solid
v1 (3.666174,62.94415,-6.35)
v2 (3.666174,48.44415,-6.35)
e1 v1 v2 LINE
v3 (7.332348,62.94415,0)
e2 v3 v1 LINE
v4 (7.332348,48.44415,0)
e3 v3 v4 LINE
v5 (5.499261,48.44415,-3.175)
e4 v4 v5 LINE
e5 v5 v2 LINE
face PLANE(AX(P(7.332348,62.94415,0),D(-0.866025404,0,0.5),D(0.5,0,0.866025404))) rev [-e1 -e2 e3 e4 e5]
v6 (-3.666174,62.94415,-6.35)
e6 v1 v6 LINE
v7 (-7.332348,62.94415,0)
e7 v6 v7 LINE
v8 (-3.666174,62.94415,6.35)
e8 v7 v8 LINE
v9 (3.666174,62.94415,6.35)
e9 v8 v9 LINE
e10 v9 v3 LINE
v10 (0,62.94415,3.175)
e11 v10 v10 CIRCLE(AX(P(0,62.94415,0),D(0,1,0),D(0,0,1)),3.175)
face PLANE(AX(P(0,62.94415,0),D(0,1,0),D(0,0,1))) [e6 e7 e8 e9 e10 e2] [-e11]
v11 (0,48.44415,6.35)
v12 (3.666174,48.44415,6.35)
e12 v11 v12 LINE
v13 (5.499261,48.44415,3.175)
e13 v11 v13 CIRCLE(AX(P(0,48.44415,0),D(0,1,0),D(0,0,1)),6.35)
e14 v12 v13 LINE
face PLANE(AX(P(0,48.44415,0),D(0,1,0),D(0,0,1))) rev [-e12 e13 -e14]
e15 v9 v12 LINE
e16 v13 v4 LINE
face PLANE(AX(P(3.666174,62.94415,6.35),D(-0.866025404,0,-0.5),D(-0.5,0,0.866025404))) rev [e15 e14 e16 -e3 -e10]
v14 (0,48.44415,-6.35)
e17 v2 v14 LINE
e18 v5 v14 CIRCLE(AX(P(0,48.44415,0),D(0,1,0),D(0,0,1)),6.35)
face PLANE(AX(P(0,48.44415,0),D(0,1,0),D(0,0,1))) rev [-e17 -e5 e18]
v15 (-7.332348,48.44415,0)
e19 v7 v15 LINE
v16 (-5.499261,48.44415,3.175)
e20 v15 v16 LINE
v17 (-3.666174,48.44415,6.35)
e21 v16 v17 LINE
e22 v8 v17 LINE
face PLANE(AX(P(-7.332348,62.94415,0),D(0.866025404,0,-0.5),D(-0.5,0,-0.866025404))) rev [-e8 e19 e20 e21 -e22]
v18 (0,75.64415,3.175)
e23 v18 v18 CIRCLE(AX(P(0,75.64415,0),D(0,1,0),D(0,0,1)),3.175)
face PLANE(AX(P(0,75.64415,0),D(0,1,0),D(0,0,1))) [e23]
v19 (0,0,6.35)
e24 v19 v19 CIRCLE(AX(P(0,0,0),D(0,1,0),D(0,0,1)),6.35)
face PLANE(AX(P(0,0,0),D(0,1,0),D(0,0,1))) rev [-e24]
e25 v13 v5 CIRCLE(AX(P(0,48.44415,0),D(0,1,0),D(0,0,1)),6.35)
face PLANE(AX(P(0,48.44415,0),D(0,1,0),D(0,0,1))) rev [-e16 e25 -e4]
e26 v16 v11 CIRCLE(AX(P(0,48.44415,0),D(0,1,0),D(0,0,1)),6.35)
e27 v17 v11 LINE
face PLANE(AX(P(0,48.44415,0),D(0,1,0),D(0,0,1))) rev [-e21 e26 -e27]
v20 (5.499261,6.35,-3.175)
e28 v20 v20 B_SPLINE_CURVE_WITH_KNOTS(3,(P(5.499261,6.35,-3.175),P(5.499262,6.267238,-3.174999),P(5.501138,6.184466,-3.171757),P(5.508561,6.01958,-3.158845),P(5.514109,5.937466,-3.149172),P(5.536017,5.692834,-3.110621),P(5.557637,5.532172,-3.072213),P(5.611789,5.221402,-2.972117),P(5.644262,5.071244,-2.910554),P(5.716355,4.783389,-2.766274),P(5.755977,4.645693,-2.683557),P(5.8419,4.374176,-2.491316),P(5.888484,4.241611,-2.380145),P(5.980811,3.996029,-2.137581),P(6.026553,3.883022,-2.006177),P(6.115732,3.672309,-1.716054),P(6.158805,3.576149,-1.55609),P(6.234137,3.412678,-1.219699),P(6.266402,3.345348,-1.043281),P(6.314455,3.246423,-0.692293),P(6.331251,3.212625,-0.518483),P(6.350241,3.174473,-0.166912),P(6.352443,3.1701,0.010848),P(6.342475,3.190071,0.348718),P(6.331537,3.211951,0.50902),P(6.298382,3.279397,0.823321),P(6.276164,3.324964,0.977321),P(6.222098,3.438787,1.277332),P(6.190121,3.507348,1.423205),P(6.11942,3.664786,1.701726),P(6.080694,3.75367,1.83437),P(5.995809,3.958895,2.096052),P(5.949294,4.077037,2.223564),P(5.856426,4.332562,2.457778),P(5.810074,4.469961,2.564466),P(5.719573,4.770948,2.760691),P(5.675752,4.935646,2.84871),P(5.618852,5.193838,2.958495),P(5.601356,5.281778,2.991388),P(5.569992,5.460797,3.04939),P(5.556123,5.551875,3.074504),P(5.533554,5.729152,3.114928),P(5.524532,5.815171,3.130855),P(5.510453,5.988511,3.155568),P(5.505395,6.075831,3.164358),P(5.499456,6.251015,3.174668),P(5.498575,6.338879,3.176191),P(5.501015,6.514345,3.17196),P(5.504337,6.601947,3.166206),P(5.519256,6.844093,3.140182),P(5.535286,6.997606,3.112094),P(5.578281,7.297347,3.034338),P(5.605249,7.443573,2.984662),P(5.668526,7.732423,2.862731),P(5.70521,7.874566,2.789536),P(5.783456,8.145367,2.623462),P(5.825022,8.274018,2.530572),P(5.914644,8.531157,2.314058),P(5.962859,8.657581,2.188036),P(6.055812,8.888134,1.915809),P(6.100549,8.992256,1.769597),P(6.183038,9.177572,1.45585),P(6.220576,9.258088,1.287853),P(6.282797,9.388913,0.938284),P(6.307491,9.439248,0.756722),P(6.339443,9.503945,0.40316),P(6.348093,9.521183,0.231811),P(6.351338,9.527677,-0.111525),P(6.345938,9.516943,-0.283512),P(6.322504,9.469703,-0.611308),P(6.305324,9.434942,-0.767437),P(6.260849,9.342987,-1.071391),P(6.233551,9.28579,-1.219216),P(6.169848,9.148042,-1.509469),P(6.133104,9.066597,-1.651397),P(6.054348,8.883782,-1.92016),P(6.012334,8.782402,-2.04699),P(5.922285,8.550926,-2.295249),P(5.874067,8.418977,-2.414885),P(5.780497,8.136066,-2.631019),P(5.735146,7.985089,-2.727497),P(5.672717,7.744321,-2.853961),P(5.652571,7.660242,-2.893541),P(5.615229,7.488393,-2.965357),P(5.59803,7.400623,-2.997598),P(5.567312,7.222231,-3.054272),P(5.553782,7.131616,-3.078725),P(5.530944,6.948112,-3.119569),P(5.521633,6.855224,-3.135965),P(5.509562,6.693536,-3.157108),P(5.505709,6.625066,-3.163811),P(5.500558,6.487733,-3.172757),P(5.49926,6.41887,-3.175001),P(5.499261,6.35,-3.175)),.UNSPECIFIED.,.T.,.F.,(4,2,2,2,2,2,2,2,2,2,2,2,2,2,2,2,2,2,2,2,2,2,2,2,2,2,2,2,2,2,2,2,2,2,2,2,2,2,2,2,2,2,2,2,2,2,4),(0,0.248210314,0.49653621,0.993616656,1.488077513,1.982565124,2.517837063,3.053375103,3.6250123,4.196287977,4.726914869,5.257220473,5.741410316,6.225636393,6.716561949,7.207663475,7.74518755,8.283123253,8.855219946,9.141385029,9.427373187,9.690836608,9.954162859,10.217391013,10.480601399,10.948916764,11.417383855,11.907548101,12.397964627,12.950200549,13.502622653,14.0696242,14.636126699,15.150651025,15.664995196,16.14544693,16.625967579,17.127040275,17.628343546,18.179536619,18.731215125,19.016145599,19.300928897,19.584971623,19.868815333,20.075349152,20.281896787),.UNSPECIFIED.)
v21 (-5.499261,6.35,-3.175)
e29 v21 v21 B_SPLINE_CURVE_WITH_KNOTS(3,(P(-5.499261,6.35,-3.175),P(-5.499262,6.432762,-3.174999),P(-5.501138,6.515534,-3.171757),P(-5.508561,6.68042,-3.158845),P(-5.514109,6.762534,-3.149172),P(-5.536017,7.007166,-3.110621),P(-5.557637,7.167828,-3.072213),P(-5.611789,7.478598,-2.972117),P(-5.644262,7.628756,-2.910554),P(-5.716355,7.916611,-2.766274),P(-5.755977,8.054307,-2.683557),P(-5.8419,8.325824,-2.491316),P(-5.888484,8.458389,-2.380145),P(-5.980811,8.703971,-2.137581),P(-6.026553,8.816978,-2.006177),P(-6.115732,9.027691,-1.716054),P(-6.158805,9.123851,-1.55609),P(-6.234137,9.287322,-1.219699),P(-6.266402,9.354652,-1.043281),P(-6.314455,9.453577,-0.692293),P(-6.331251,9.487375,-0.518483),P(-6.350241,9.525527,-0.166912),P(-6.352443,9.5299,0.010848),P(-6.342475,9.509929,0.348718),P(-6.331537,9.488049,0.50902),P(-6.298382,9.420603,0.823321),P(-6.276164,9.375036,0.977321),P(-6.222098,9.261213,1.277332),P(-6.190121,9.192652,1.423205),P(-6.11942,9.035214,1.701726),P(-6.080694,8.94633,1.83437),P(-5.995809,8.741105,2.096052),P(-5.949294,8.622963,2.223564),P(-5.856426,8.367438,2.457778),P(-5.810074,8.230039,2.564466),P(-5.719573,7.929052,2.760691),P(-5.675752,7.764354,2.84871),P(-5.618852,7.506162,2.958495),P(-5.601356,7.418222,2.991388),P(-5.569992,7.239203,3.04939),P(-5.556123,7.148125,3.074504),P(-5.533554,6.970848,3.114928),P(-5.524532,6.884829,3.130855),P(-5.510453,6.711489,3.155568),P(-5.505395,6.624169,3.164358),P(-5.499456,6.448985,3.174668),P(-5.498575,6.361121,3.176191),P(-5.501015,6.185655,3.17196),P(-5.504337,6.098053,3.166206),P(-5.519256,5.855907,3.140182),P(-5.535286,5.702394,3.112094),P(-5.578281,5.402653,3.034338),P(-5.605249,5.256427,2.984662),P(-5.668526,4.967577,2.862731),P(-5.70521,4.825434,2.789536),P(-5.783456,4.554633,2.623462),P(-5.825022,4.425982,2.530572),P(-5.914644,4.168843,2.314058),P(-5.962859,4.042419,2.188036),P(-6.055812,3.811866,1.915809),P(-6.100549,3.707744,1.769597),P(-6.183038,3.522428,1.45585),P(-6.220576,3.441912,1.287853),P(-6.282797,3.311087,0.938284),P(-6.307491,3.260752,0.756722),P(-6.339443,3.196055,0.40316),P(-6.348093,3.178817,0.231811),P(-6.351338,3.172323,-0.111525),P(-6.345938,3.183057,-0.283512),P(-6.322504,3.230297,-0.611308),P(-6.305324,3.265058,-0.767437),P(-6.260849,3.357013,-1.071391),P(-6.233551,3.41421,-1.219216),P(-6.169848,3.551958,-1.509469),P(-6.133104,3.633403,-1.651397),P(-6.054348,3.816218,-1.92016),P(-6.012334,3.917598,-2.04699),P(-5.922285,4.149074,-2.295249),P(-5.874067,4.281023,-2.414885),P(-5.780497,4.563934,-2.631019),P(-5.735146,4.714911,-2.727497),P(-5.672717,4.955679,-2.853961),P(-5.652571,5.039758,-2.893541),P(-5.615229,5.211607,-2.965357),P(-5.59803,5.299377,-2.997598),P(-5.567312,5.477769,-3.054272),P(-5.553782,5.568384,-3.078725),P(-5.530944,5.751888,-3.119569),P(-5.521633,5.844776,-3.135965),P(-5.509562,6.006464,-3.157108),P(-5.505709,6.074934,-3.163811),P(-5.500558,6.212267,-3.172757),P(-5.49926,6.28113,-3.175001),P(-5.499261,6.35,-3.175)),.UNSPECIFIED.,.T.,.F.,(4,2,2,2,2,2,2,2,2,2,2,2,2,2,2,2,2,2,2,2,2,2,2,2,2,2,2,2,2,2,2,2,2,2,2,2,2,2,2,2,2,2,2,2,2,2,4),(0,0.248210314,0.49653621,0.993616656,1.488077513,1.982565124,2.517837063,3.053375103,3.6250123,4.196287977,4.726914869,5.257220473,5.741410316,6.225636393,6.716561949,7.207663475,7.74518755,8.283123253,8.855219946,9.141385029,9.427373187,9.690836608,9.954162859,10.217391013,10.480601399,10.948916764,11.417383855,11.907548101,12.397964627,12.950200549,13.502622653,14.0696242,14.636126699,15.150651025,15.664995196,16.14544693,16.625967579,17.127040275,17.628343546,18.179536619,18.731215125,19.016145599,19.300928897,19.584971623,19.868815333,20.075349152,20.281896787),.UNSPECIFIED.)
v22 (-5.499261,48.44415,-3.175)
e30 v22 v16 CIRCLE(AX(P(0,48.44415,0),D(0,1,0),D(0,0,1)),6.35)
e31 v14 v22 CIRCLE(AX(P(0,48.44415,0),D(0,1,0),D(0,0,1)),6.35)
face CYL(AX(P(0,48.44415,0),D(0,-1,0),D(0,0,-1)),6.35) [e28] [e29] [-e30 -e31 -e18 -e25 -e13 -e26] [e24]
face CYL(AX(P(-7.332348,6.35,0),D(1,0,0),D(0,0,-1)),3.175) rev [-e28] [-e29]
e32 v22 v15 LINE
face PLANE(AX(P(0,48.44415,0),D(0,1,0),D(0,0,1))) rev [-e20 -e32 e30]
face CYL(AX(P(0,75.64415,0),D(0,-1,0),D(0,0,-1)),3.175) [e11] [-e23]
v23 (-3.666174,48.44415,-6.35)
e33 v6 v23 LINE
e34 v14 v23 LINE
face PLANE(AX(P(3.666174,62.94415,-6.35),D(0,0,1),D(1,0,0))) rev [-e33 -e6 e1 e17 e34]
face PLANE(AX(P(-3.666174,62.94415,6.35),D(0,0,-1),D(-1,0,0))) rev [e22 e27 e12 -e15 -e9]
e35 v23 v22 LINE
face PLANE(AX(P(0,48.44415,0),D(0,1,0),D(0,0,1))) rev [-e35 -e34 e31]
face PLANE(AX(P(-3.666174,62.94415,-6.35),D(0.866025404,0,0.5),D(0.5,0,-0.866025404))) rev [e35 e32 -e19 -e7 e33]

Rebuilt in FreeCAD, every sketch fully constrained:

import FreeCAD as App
import Part
import Sketcher

V = App.Vector
Q = App.Units.Quantity


def add_polygon(sketch, points):
    """Adds a closed chain of lines whose ends are joined by coincident constraints."""
    first, n = sketch.GeometryCount, len(points)
    for a, b in zip(points, points[1:] + points[:1]):
        sketch.addGeometry(Part.LineSegment(App.Vector(*a, 0), App.Vector(*b, 0)), False)
    for i in range(n):
        sketch.addConstraint(Sketcher.Constraint("Coincident", first + i, 2, first + (i + 1) % n, 1))

doc = App.newDocument("Part")
params = doc.addObject("Spreadsheet::Sheet", "Params")
for row, (alias, value) in enumerate([
    ("sketch1_diameter", "0.5 in"),
    ("pad1_length", "48.44415 mm"),
    ("pad2_length", "14.5 mm"),
    ("sketch3_diameter", "0.25 in"),
    ("sketch4_diameter", "0.25 in"),
    ("pad3_length", "0.5 in"),
], start=1):
    params.set(f"A{row}", alias)
    params.set(f"B{row}", "=" + value)
    params.setAlias(f"B{row}", alias)

body = doc.addObject("PartDesign::Body", "Body")

# Sketch on XZ plane
sketch1 = body.newObject("Sketcher::SketchObject", "Sketch")
sketch1.AttachmentSupport = (doc.getObject("XZ_Plane"), [""])
sketch1.MapMode = "FlatFace"
sketch1.addGeometry(Part.Circle(V(0, 0, 0), V(0, 0, 1), 6), False)
sketch1.addConstraint(Sketcher.Constraint("Coincident", 0, 3, -1, 1))
sketch1.addConstraint(Sketcher.Constraint("Diameter", 0, Q("0.5 in")))
sketch1.setExpression("Constraints[1]", "Params.sketch1_diameter")
pad1 = body.newObject("PartDesign::Pad", "Pad")
pad1.Profile = sketch1
pad1.setExpression("Length", "Params.pad1_length")
pad1.Reversed = True

# Sketch on XZ plane
sketch2 = body.newObject("Sketcher::SketchObject", "Sketch001")
sketch2.AttachmentSupport = (doc.getObject("XZ_Plane"), [""])
sketch2.MapMode = "FlatFace"
sketch2.AttachmentOffset = App.Placement(V(0, 0, -48.44415), App.Rotation())
add_polygon(sketch2, [(7, 0), (4, -6), (-4, -6), (-7, 0), (-4, 6), (4, 6)])  # lines 0-5
sketch2.addConstraint(Sketcher.Constraint("Horizontal", 1))
sketch2.addConstraint(Sketcher.Constraint("Horizontal", 4))
sketch2.addConstraint(Sketcher.Constraint("Symmetric", 0, 2, 3, 2, -1, 1))
sketch2.addConstraint(Sketcher.Constraint("Symmetric", 2, 2, 5, 2, -1, 1))
sketch2.addConstraint(Sketcher.Constraint("PointOnObject", 2, 2, -1))
sketch2.addConstraint(Sketcher.Constraint("Parallel", 2, 5))
sketch2.addConstraint(Sketcher.Constraint("Vertical", 1, 2, 3, 2))
sketch2.addConstraint(Sketcher.Constraint("Angle", 0, Q("-120 deg")))
sketch2.addConstraint(Sketcher.Constraint("DistanceY", 1, 2, 3, 2, Q("0.5 in")))
sketch2.addConstraint(Sketcher.Constraint("DistanceX", 1, 2, 1, 1, Q("7.332348 mm")))
pad2 = body.newObject("PartDesign::Pad", "Pad001")
pad2.Profile = sketch2
pad2.setExpression("Length", "Params.pad2_length")
pad2.Reversed = True

# Sketch on YZ plane
sketch3 = body.newObject("Sketcher::SketchObject", "Sketch002")
sketch3.AttachmentSupport = (doc.getObject("YZ_Plane"), [""])
sketch3.MapMode = "FlatFace"
sketch3.addGeometry(Part.Circle(V(6.3, 0, 0), V(0, 0, 1), 3.2), False)
sketch3.addConstraint(Sketcher.Constraint("PointOnObject", 0, 3, -1))
sketch3.addConstraint(Sketcher.Constraint("Diameter", 0, Q("0.25 in")))
sketch3.addConstraint(Sketcher.Constraint("DistanceX", -1, 1, 0, 3, Q("0.25 in")))
sketch3.setExpression("Constraints[1]", "Params.sketch3_diameter")
pocket1 = body.newObject("PartDesign::Pocket", "Pocket")
pocket1.Profile = sketch3
pocket1.Type = "ThroughAll"
pocket1.Midplane = True

# Sketch on XZ plane
sketch4 = body.newObject("Sketcher::SketchObject", "Sketch003")
sketch4.AttachmentSupport = (doc.getObject("XZ_Plane"), [""])
sketch4.MapMode = "FlatFace"
sketch4.AttachmentOffset = App.Placement(V(0, 0, -62.94415), App.Rotation())
sketch4.addGeometry(Part.Circle(V(0, 0, 0), V(0, 0, 1), 3.2), False)
sketch4.addConstraint(Sketcher.Constraint("Coincident", 0, 3, -1, 1))
sketch4.addConstraint(Sketcher.Constraint("Diameter", 0, Q("0.25 in")))
sketch4.setExpression("Constraints[1]", "Params.sketch4_diameter")
pad3 = body.newObject("PartDesign::Pad", "Pad002")
pad3.Profile = sketch4
pad3.setExpression("Length", "Params.pad3_length")
pad3.Reversed = True

doc.recompute()
